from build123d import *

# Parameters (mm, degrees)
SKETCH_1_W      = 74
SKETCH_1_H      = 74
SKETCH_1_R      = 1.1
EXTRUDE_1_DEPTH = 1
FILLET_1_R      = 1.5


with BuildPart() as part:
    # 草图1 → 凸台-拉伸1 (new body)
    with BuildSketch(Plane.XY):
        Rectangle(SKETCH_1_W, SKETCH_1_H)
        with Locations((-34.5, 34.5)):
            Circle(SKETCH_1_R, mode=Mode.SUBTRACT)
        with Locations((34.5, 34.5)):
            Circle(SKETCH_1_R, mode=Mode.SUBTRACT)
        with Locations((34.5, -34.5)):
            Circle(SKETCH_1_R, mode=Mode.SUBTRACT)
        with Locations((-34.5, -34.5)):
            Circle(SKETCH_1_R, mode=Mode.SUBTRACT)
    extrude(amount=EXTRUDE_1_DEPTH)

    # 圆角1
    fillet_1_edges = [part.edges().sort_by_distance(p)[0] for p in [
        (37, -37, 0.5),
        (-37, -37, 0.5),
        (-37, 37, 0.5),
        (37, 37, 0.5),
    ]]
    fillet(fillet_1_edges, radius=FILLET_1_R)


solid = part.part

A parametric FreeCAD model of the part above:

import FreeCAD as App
import Part
import Sketcher
from FreeCAD import Vector


def edges_at(feature, points):
    """Names of the edges that pass closest to the given points."""
    edges = feature.Shape.Edges
    near = lambda p: min(range(len(edges)), key=lambda i: edges[i].distToShape(Part.Vertex(*p))[0])
    return sorted({f"Edge{near(p) + 1}" for p in points})


def add_polygon(sketch, points):
    """Adds a closed chain of lines whose ends are joined by coincident constraints."""
    first, n = sketch.GeometryCount, len(points)
    for a, b in zip(points, points[1:] + points[:1]):
        sketch.addGeometry(Part.LineSegment(App.Vector(*a, 0), App.Vector(*b, 0)), False)
    for i in range(n):
        sketch.addConstraint(Sketcher.Constraint("Coincident", first + i, 2, first + (i + 1) % n, 1))

doc = App.newDocument("Part")
body = doc.addObject("PartDesign::Body", "Body")

# Sketch on XY plane
sketch1 = body.newObject("Sketcher::SketchObject", "Sketch")
sketch1.AttachmentSupport = (doc.getObject("XY_Plane"), [""])
sketch1.MapMode = "FlatFace"
add_polygon(sketch1, [(-37, 37), (-37, -37), (37, -37), (37, 37)])  # lines 0-3
sketch1.addGeometry(Part.Circle(Vector(-34.5, -34.5, 0), Vector(0, 0, 1), 1.1), False)  # 4
sketch1.addGeometry(Part.Circle(Vector(34.5, -34.5, 0), Vector(0, 0, 1), 1.1), False)  # 5
sketch1.addGeometry(Part.Circle(Vector(-34.5, 34.5, 0), Vector(0, 0, 1), 1.1), False)  # 6
sketch1.addGeometry(Part.Circle(Vector(34.5, 34.5, 0), Vector(0, 0, 1), 1.1), False)  # 7
sketch1.addConstraint(Sketcher.Constraint("Vertical", 0))
sketch1.addConstraint(Sketcher.Constraint("Horizontal", 1))
sketch1.addConstraint(Sketcher.Constraint("Vertical", 2))
sketch1.addConstraint(Sketcher.Constraint("Horizontal", 3))
sketch1.addConstraint(Sketcher.Constraint("Equal", 4, 5))
sketch1.addConstraint(Sketcher.Constraint("Equal", 5, 6))
sketch1.addConstraint(Sketcher.Constraint("Equal", 6, 7))
sketch1.addConstraint(Sketcher.Constraint("Symmetric", 5, 3, 6, 3, -1, 1))
sketch1.addConstraint(Sketcher.Constraint("Symmetric", 4, 3, 7, 3, -1, 1))
sketch1.addConstraint(Sketcher.Constraint("Symmetric", 0, 2, 2, 2, -1, 1))
sketch1.addConstraint(Sketcher.Constraint("Symmetric", 4, 3, 5, 3, -2))
sketch1.addConstraint(Sketcher.Constraint("Equal", 3, 0))
sketch1.addConstraint(Sketcher.Constraint("Diameter", 4, 2.2))
sketch1.addConstraint(Sketcher.Constraint("DistanceX", 1, 1, 1, 2, 74.0))
sketch1.addConstraint(Sketcher.Constraint("DistanceX", 4, 3, 5, 3, 69.0))
sketch1.addConstraint(Sketcher.Constraint("DistanceY", 4, 3, 6, 3, 69.0))
pad1 = body.newObject("PartDesign::Pad", "Pad")
pad1.Profile = sketch1
pad1.Length = 1
doc.recompute()

fillet = body.newObject("PartDesign::Fillet", "Fillet")
fillet.Base = (pad1, edges_at(pad1, [
    (37, -37, 0.5),
    (-37, -37, 0.5),
    (-37, 37, 0.5),
    (37, 37, 0.5),
]))
fillet.Radius = 1.5

doc.recompute()
